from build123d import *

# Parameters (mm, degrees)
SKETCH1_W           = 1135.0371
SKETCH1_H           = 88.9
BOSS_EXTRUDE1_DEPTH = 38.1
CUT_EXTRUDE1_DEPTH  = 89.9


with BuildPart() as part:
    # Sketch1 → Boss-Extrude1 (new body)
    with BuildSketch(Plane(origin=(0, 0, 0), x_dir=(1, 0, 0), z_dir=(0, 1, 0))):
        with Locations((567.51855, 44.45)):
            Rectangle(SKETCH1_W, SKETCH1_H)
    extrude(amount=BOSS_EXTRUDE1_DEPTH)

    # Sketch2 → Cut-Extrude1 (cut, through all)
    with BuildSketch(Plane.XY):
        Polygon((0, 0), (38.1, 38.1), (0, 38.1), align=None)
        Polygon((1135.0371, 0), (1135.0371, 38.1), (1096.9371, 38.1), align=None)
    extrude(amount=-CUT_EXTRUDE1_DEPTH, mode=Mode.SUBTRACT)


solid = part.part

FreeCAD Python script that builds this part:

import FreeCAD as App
import Part
import Sketcher
from FreeCAD import Vector
Q = App.Units.Quantity

doc = App.newDocument("Part")
body = doc.addObject("PartDesign::Body", "Body")

# Sketch on XZ plane
sketch1 = body.newObject("Sketcher::SketchObject", "Sketch")
sketch1.AttachmentSupport = (doc.getObject("XZ_Plane"), [""])
sketch1.MapMode = "FlatFace"
sketch1.addGeometry([
    Part.LineSegment(Vector(0, -89, 0), Vector(0, 0, 0)),
    Part.LineSegment(Vector(0, 0, 0), Vector(1135, 0, 0)),
    Part.LineSegment(Vector(1135, 0, 0), Vector(1135, -89, 0)),
    Part.LineSegment(Vector(1135, -89, 0), Vector(0, -89, 0)),
], False)
sketch1.addConstraint([
    Sketcher.Constraint("Coincident", 0, 2, 1, 1),
    Sketcher.Constraint("Coincident", 1, 2, 2, 1),
    Sketcher.Constraint("Coincident", 2, 2, 3, 1),
    Sketcher.Constraint("Coincident", 3, 2, 0, 1),
    Sketcher.Constraint("Vertical", 0),
    Sketcher.Constraint("Horizontal", 1),
    Sketcher.Constraint("Vertical", 2),
    Sketcher.Constraint("Horizontal", 3),
    Sketcher.Constraint("Coincident", 0, 2, -1, 1),
    Sketcher.Constraint("DistanceY", 0, 1, 0, 2, Q("3.5 in")),
    Sketcher.Constraint("DistanceX", 1, 1, 1, 2, Q("44.6865 in")),
])
pad1 = body.newObject("PartDesign::Pad", "Pad")
pad1.Profile = sketch1
pad1.Length = Q("1.5 in")
pad1.Reversed = True

# Sketch on XY plane
sketch2 = body.newObject("Sketcher::SketchObject", "Sketch001")
sketch2.AttachmentSupport = (doc.getObject("XY_Plane"), [""])
sketch2.MapMode = "FlatFace"
sketch2.addGeometry([
    Part.LineSegment(Vector(0, 0, 0), Vector(38, 38, 0)),  # 0
    Part.LineSegment(Vector(38, 38, 0), Vector(0, 38, 0)),  # 1
    Part.LineSegment(Vector(0, 38, 0), Vector(0, 0, 0)),  # 2
    Part.LineSegment(Vector(1135, 0, 0), Vector(1135, 38, 0)),  # 3
    Part.LineSegment(Vector(1135, 38, 0), Vector(1097, 38, 0)),  # 4
    Part.LineSegment(Vector(1097, 38, 0), Vector(1135, 0, 0)),  # 5
], False)
sketch2.addConstraint([
    Sketcher.Constraint("Coincident", 0, 2, 1, 1),
    Sketcher.Constraint("Coincident", 1, 2, 2, 1),
    Sketcher.Constraint("Coincident", 2, 2, 0, 1),
    Sketcher.Constraint("Coincident", 3, 2, 4, 1),
    Sketcher.Constraint("Coincident", 4, 2, 5, 1),
    Sketcher.Constraint("Coincident", 5, 2, 3, 1),
    Sketcher.Constraint("Horizontal", 1),
    Sketcher.Constraint("Vertical", 2),
    Sketcher.Constraint("Vertical", 3),
    Sketcher.Constraint("Horizontal", 4),
    Sketcher.Constraint("Coincident", 2, 2, -1, 1),
    Sketcher.Constraint("PointOnObject", 5, 2, -1),
    Sketcher.Constraint("Perpendicular", 0, 5),
    Sketcher.Constraint("Horizontal", 1, 2, 3, 2),
    Sketcher.Constraint("Equal", 1, 4),
    Sketcher.Constraint("DistanceX", 1, 2, 1, 1, Q("1.5 in")),
    Sketcher.Constraint("DistanceX", -1, 1, 3, 2, Q("44.6865 in")),
])
pocket1 = body.newObject("PartDesign::Pocket", "Pocket")
pocket1.Profile = sketch2
pocket1.Type = "ThroughAll"

doc.recompute()
